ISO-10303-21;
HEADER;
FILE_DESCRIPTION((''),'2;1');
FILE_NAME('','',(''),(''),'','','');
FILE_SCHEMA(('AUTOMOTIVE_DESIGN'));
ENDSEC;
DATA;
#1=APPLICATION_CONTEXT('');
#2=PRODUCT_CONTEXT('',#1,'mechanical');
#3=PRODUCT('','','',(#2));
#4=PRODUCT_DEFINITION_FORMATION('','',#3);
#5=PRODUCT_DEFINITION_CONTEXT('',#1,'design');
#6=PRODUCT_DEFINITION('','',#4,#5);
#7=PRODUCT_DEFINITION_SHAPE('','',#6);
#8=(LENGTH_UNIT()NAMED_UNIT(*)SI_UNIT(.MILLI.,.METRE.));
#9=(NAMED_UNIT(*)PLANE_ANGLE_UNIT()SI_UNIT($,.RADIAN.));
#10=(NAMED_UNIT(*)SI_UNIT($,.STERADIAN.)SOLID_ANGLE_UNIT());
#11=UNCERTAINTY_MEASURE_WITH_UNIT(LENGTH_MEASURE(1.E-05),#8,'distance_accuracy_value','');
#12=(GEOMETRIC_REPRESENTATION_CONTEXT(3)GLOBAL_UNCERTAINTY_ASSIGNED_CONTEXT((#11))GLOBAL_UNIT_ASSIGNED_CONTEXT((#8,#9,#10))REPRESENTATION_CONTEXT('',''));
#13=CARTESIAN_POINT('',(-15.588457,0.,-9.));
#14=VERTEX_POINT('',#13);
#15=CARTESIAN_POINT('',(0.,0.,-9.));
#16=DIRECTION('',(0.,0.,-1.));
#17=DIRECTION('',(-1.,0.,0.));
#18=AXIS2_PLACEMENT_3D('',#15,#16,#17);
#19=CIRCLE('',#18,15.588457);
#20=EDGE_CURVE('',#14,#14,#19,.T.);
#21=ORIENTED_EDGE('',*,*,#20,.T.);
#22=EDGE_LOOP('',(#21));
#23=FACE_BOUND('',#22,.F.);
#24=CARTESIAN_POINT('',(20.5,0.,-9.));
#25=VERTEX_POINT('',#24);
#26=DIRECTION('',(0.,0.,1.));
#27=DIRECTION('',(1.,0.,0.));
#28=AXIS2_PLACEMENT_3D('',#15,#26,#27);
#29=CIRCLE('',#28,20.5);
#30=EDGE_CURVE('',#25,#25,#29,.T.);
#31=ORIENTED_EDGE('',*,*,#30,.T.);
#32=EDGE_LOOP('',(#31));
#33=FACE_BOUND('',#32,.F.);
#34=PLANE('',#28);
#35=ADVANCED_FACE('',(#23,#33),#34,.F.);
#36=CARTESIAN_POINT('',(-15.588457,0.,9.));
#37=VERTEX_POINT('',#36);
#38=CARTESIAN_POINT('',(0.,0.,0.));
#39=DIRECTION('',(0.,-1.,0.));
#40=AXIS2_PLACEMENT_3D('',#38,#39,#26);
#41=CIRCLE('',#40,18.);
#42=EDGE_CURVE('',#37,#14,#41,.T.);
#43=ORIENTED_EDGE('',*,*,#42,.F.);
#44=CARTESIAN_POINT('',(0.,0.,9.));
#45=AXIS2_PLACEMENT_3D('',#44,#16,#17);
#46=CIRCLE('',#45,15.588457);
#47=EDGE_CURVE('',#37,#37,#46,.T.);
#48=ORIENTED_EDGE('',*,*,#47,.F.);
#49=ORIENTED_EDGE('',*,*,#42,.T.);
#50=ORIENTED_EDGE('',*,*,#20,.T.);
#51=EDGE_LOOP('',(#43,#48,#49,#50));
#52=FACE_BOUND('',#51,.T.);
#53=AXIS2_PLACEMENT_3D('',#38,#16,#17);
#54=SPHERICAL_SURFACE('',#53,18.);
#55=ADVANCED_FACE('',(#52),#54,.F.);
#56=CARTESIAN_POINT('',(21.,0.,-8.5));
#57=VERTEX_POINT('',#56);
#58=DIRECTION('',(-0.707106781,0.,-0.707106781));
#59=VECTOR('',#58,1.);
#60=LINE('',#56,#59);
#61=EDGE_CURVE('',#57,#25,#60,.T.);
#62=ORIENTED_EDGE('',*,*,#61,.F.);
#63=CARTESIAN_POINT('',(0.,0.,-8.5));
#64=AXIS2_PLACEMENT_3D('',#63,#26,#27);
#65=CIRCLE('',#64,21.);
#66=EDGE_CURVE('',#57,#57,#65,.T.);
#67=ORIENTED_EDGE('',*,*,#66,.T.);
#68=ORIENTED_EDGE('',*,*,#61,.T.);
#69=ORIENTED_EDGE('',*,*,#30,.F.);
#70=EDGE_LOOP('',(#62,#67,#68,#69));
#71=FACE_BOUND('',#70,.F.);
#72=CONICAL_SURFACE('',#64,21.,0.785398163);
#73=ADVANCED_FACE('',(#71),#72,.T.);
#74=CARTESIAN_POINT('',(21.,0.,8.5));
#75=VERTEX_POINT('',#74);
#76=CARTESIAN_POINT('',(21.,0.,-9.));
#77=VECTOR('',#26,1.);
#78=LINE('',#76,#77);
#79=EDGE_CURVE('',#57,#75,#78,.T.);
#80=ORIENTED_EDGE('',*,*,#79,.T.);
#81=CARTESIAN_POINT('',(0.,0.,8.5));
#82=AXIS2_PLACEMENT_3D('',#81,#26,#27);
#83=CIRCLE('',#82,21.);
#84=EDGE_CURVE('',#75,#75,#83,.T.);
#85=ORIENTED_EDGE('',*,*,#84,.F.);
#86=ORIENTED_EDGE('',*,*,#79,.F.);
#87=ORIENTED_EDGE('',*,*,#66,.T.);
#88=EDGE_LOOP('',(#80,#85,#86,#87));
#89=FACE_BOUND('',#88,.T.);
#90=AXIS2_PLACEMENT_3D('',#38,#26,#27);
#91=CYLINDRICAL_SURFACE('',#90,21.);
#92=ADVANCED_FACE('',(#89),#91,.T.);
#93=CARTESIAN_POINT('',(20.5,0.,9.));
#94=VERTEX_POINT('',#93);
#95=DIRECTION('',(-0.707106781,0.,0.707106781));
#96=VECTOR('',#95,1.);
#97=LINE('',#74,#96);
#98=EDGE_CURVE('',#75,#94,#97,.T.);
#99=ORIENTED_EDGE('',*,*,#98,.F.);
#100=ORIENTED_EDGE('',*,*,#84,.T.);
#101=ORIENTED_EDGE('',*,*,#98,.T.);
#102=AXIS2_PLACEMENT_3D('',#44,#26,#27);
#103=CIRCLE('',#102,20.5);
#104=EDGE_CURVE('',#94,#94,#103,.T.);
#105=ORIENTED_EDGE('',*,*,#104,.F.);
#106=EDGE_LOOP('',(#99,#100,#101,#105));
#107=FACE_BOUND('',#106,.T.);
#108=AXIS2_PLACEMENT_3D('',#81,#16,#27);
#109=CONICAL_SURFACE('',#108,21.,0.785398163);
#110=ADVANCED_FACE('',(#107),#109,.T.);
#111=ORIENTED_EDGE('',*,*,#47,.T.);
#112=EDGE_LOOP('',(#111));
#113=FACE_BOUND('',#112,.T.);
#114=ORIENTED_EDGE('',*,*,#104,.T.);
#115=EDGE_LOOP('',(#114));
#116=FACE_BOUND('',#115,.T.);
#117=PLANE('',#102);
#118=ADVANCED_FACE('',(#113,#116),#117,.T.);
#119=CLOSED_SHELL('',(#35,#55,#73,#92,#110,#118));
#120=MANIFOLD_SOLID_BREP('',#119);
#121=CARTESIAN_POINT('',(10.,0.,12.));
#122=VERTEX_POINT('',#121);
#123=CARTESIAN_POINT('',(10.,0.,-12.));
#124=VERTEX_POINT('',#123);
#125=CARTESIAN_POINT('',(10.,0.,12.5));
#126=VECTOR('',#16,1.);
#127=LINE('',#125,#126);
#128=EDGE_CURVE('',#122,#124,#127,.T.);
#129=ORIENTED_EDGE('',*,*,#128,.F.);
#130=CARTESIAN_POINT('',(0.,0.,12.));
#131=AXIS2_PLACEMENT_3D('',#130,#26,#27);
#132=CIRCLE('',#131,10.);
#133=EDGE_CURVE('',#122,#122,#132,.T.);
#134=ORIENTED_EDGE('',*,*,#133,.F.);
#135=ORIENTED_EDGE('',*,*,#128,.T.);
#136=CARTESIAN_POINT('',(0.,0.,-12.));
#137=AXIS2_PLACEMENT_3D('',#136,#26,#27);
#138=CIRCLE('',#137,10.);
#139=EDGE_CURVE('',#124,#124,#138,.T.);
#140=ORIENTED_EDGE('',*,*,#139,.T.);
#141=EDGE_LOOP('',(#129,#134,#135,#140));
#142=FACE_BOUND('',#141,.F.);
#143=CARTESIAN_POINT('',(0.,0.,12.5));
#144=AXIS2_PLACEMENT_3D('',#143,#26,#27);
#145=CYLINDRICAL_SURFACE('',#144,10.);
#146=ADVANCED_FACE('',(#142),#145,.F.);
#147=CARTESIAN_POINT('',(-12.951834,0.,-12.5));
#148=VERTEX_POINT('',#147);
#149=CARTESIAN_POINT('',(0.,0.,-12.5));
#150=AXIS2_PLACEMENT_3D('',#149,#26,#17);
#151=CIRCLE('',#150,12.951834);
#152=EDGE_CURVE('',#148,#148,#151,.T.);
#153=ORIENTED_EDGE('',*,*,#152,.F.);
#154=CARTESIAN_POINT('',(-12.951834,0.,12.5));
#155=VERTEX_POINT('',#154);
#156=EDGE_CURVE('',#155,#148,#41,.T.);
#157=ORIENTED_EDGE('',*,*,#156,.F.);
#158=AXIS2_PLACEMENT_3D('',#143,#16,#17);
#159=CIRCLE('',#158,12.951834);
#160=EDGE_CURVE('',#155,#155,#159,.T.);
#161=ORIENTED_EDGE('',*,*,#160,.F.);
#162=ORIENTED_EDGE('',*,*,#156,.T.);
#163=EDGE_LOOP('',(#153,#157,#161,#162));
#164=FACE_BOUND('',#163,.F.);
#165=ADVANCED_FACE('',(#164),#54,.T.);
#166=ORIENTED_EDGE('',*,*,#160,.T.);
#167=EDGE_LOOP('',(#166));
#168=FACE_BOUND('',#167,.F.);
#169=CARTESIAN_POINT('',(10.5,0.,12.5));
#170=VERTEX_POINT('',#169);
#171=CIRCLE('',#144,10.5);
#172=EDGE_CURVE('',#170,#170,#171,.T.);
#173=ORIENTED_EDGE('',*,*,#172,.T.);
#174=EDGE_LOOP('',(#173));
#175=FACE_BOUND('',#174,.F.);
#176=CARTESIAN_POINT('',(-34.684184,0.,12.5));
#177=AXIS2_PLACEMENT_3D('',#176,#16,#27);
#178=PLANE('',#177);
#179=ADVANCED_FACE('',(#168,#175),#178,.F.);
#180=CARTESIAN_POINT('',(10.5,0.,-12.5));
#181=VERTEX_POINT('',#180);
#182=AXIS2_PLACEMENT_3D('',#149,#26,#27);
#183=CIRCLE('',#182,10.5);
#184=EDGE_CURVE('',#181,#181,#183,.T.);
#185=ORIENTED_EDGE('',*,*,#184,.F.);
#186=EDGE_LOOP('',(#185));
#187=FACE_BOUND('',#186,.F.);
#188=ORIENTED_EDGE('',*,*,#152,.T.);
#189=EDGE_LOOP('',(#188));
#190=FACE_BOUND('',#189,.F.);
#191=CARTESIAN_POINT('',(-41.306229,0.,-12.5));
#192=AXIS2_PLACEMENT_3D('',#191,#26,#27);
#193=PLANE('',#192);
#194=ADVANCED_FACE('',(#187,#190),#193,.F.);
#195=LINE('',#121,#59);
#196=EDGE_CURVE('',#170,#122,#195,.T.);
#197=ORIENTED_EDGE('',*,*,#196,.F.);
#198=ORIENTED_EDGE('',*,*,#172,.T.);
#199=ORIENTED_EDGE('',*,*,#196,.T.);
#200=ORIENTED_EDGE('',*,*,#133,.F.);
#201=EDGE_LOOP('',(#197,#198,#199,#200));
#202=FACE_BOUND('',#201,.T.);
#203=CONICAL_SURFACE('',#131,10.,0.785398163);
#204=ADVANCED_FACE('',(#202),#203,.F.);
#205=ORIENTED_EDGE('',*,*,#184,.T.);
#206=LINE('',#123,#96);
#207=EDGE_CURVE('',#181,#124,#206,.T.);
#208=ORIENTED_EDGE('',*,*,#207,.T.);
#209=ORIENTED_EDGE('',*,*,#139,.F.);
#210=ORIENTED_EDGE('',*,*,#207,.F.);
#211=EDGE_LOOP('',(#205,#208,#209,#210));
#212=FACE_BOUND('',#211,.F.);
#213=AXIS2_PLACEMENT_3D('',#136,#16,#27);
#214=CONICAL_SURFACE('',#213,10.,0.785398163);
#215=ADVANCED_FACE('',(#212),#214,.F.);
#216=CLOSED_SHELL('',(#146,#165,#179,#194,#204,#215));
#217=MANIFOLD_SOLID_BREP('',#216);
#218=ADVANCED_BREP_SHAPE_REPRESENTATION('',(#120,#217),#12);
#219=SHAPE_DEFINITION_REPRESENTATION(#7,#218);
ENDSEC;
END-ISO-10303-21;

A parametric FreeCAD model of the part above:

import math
import FreeCAD as App
import Part
import Sketcher


def edges_at(feature, points):
    """Names of the edges that pass closest to the given points."""
    edges = feature.Shape.Edges
    near = lambda p: min(range(len(edges)), key=lambda i: edges[i].distToShape(Part.Vertex(*p))[0])
    return sorted({f"Edge{near(p) + 1}" for p in points})


def add_polygon(sketch, points):
    """Adds a closed chain of lines whose ends are joined by coincident constraints."""
    first, n = sketch.GeometryCount, len(points)
    for a, b in zip(points, points[1:] + points[:1]):
        sketch.addGeometry(Part.LineSegment(App.Vector(*a, 0), App.Vector(*b, 0)), False)
    for i in range(n):
        sketch.addConstraint(Sketcher.Constraint("Coincident", first + i, 2, first + (i + 1) % n, 1))

doc = App.newDocument("Part")
body = doc.addObject("PartDesign::Body", "Body")

sketch1 = body.newObject("Sketcher::SketchObject", "Sketch")
sketch1.AttachmentSupport = (doc.getObject("XY_Plane"), [""])
sketch1.MapMode = "FlatFace"
sketch1.addGeometry(Part.Circle(App.Vector(0, 0, 0), App.Vector(0, 0, 1), 21), False)
sketch1.addConstraint([
    Sketcher.Constraint("Coincident", 0, 3, -1, 1),
    Sketcher.Constraint("Diameter", 0, 42.0),
])
pad1 = body.newObject("PartDesign::Pad", "Pad")
pad1.Profile = sketch1
pad1.Length = 18
pad1.Midplane = True

sketch2 = body.newObject("Sketcher::SketchObject", "Sketch001")
sketch2.AttachmentSupport = (doc.getObject("XZ_Plane"), [""])
sketch2.MapMode = "FlatFace"
sketch2.addGeometry([
    Part.LineSegment(App.Vector(0, -18, 0), App.Vector(0, 18, 0)),
    Part.ArcOfCircle(Part.Circle(App.Vector(0, 0, 0), App.Vector(0, 0, 1), 18), math.radians(90), math.radians(270)),
], False)
sketch2.addConstraint([
    Sketcher.Constraint("Coincident", 0, 1, 1, 2),
    Sketcher.Constraint("Coincident", 1, 1, 0, 2),
    Sketcher.Constraint("Vertical", 0),
    Sketcher.Constraint("Coincident", 1, 3, -1, 1),
    Sketcher.Constraint("PointOnObject", 0, 1, -2),
    Sketcher.Constraint("Radius", 1, 18.0),
])
groove = body.newObject("PartDesign::Groove", "Groove")
groove.Profile = sketch2
groove.ReferenceAxis = (sketch2, ["V_Axis"])
groove.Angle = 360
doc.recompute()

chamfer = body.newObject("PartDesign::Chamfer", "Chamfer")
chamfer.Base = (groove, edges_at(groove, [(-21, 0, 9), (-21, 0, -9)]))
chamfer.Size = 0.5
body2 = doc.addObject("PartDesign::Body", "Body001")

sketch3 = body2.newObject("Sketcher::SketchObject", "Sketch002")
sketch3.AttachmentSupport = (doc.getObject("XZ_Plane001"), [""])
sketch3.MapMode = "FlatFace"
sketch3.addGeometry([
    Part.LineSegment(App.Vector(0, -18, 0), App.Vector(0, 18, 0)),
    Part.ArcOfCircle(Part.Circle(App.Vector(0, 0, 0), App.Vector(0, 0, 1), 18), math.radians(90), math.radians(270)),
], False)
sketch3.addConstraint([
    Sketcher.Constraint("Coincident", 0, 1, 1, 2),
    Sketcher.Constraint("Coincident", 1, 1, 0, 2),
    Sketcher.Constraint("Vertical", 0),
    Sketcher.Constraint("Coincident", 1, 3, -1, 1),
    Sketcher.Constraint("PointOnObject", 0, 1, -2),
    Sketcher.Constraint("Radius", 1, 18.0),
])
revolution = body2.newObject("PartDesign::Revolution", "Revolution")
revolution.Profile = sketch3
revolution.ReferenceAxis = (sketch3, ["V_Axis"])
revolution.Angle = 360

sketch4 = body2.newObject("Sketcher::SketchObject", "Sketch003")
sketch4.AttachmentSupport = (doc.getObject("XZ_Plane001"), [""])
sketch4.MapMode = "FlatFace"
add_polygon(sketch4, [(-35, 49), (-35, 12), (35, 12), (35, 49)])
add_polygon(sketch4, [(-41, -12), (-41, -37), (41, -37), (41, -12)])
sketch4.addConstraint([
    Sketcher.Constraint("Vertical", 0),
    Sketcher.Constraint("Horizontal", 1),
    Sketcher.Constraint("Vertical", 2),
    Sketcher.Constraint("Horizontal", 3),
    Sketcher.Constraint("Vertical", 4),
    Sketcher.Constraint("Horizontal", 5),
    Sketcher.Constraint("Vertical", 6),
    Sketcher.Constraint("Horizontal", 7),
    Sketcher.Constraint("DistanceY", 6, 2, 1, 2, 25.0),
    Sketcher.Constraint("DistanceY", -1, 1, 0, 2, 12.5),
    Sketcher.Constraint("DistanceX", 1, 1, 1, 2, 69.368369),
    Sketcher.Constraint("DistanceX", 5, 1, 5, 2, 82.612458),
    Sketcher.Constraint("DistanceY", 0, 2, 0, 1, 36.789127),
    Sketcher.Constraint("DistanceY", 4, 2, 4, 1, 24.526078),
    Sketcher.Constraint("DistanceX", 4, 2, -1, 1, 41.306229),
    Sketcher.Constraint("DistanceX", 0, 2, -1, 1, 34.684184),
])
pocket1 = body2.newObject("PartDesign::Pocket", "Pocket")
pocket1.Profile = sketch4
pocket1.Type = "ThroughAll"
pocket1.Midplane = True

sketch5 = body2.newObject("Sketcher::SketchObject", "Sketch004")
sketch5.AttachmentSupport = (doc.getObject("XY_Plane001"), [""])
sketch5.MapMode = "FlatFace"
sketch5.AttachmentOffset = App.Placement(App.Vector(0, 0, 12.5), App.Rotation())
sketch5.addGeometry(Part.Circle(App.Vector(0, 0, 0), App.Vector(0, 0, 1), 10), False)
sketch5.addConstraint([
    Sketcher.Constraint("Coincident", 0, 3, -1, 1),
    Sketcher.Constraint("Diameter", 0, 20.0),
])
pocket2 = body2.newObject("PartDesign::Pocket", "Pocket001")
pocket2.Profile = sketch5
pocket2.Type = "ThroughAll"
doc.recompute()

chamfer2 = body2.newObject("PartDesign::Chamfer", "Chamfer001")
chamfer2.Base = (pocket2, edges_at(pocket2, [(-10, 0, 12.5), (10, 0, 0), (-10, 0, -12.5)]))
chamfer2.Size = 0.5

doc.recompute()
